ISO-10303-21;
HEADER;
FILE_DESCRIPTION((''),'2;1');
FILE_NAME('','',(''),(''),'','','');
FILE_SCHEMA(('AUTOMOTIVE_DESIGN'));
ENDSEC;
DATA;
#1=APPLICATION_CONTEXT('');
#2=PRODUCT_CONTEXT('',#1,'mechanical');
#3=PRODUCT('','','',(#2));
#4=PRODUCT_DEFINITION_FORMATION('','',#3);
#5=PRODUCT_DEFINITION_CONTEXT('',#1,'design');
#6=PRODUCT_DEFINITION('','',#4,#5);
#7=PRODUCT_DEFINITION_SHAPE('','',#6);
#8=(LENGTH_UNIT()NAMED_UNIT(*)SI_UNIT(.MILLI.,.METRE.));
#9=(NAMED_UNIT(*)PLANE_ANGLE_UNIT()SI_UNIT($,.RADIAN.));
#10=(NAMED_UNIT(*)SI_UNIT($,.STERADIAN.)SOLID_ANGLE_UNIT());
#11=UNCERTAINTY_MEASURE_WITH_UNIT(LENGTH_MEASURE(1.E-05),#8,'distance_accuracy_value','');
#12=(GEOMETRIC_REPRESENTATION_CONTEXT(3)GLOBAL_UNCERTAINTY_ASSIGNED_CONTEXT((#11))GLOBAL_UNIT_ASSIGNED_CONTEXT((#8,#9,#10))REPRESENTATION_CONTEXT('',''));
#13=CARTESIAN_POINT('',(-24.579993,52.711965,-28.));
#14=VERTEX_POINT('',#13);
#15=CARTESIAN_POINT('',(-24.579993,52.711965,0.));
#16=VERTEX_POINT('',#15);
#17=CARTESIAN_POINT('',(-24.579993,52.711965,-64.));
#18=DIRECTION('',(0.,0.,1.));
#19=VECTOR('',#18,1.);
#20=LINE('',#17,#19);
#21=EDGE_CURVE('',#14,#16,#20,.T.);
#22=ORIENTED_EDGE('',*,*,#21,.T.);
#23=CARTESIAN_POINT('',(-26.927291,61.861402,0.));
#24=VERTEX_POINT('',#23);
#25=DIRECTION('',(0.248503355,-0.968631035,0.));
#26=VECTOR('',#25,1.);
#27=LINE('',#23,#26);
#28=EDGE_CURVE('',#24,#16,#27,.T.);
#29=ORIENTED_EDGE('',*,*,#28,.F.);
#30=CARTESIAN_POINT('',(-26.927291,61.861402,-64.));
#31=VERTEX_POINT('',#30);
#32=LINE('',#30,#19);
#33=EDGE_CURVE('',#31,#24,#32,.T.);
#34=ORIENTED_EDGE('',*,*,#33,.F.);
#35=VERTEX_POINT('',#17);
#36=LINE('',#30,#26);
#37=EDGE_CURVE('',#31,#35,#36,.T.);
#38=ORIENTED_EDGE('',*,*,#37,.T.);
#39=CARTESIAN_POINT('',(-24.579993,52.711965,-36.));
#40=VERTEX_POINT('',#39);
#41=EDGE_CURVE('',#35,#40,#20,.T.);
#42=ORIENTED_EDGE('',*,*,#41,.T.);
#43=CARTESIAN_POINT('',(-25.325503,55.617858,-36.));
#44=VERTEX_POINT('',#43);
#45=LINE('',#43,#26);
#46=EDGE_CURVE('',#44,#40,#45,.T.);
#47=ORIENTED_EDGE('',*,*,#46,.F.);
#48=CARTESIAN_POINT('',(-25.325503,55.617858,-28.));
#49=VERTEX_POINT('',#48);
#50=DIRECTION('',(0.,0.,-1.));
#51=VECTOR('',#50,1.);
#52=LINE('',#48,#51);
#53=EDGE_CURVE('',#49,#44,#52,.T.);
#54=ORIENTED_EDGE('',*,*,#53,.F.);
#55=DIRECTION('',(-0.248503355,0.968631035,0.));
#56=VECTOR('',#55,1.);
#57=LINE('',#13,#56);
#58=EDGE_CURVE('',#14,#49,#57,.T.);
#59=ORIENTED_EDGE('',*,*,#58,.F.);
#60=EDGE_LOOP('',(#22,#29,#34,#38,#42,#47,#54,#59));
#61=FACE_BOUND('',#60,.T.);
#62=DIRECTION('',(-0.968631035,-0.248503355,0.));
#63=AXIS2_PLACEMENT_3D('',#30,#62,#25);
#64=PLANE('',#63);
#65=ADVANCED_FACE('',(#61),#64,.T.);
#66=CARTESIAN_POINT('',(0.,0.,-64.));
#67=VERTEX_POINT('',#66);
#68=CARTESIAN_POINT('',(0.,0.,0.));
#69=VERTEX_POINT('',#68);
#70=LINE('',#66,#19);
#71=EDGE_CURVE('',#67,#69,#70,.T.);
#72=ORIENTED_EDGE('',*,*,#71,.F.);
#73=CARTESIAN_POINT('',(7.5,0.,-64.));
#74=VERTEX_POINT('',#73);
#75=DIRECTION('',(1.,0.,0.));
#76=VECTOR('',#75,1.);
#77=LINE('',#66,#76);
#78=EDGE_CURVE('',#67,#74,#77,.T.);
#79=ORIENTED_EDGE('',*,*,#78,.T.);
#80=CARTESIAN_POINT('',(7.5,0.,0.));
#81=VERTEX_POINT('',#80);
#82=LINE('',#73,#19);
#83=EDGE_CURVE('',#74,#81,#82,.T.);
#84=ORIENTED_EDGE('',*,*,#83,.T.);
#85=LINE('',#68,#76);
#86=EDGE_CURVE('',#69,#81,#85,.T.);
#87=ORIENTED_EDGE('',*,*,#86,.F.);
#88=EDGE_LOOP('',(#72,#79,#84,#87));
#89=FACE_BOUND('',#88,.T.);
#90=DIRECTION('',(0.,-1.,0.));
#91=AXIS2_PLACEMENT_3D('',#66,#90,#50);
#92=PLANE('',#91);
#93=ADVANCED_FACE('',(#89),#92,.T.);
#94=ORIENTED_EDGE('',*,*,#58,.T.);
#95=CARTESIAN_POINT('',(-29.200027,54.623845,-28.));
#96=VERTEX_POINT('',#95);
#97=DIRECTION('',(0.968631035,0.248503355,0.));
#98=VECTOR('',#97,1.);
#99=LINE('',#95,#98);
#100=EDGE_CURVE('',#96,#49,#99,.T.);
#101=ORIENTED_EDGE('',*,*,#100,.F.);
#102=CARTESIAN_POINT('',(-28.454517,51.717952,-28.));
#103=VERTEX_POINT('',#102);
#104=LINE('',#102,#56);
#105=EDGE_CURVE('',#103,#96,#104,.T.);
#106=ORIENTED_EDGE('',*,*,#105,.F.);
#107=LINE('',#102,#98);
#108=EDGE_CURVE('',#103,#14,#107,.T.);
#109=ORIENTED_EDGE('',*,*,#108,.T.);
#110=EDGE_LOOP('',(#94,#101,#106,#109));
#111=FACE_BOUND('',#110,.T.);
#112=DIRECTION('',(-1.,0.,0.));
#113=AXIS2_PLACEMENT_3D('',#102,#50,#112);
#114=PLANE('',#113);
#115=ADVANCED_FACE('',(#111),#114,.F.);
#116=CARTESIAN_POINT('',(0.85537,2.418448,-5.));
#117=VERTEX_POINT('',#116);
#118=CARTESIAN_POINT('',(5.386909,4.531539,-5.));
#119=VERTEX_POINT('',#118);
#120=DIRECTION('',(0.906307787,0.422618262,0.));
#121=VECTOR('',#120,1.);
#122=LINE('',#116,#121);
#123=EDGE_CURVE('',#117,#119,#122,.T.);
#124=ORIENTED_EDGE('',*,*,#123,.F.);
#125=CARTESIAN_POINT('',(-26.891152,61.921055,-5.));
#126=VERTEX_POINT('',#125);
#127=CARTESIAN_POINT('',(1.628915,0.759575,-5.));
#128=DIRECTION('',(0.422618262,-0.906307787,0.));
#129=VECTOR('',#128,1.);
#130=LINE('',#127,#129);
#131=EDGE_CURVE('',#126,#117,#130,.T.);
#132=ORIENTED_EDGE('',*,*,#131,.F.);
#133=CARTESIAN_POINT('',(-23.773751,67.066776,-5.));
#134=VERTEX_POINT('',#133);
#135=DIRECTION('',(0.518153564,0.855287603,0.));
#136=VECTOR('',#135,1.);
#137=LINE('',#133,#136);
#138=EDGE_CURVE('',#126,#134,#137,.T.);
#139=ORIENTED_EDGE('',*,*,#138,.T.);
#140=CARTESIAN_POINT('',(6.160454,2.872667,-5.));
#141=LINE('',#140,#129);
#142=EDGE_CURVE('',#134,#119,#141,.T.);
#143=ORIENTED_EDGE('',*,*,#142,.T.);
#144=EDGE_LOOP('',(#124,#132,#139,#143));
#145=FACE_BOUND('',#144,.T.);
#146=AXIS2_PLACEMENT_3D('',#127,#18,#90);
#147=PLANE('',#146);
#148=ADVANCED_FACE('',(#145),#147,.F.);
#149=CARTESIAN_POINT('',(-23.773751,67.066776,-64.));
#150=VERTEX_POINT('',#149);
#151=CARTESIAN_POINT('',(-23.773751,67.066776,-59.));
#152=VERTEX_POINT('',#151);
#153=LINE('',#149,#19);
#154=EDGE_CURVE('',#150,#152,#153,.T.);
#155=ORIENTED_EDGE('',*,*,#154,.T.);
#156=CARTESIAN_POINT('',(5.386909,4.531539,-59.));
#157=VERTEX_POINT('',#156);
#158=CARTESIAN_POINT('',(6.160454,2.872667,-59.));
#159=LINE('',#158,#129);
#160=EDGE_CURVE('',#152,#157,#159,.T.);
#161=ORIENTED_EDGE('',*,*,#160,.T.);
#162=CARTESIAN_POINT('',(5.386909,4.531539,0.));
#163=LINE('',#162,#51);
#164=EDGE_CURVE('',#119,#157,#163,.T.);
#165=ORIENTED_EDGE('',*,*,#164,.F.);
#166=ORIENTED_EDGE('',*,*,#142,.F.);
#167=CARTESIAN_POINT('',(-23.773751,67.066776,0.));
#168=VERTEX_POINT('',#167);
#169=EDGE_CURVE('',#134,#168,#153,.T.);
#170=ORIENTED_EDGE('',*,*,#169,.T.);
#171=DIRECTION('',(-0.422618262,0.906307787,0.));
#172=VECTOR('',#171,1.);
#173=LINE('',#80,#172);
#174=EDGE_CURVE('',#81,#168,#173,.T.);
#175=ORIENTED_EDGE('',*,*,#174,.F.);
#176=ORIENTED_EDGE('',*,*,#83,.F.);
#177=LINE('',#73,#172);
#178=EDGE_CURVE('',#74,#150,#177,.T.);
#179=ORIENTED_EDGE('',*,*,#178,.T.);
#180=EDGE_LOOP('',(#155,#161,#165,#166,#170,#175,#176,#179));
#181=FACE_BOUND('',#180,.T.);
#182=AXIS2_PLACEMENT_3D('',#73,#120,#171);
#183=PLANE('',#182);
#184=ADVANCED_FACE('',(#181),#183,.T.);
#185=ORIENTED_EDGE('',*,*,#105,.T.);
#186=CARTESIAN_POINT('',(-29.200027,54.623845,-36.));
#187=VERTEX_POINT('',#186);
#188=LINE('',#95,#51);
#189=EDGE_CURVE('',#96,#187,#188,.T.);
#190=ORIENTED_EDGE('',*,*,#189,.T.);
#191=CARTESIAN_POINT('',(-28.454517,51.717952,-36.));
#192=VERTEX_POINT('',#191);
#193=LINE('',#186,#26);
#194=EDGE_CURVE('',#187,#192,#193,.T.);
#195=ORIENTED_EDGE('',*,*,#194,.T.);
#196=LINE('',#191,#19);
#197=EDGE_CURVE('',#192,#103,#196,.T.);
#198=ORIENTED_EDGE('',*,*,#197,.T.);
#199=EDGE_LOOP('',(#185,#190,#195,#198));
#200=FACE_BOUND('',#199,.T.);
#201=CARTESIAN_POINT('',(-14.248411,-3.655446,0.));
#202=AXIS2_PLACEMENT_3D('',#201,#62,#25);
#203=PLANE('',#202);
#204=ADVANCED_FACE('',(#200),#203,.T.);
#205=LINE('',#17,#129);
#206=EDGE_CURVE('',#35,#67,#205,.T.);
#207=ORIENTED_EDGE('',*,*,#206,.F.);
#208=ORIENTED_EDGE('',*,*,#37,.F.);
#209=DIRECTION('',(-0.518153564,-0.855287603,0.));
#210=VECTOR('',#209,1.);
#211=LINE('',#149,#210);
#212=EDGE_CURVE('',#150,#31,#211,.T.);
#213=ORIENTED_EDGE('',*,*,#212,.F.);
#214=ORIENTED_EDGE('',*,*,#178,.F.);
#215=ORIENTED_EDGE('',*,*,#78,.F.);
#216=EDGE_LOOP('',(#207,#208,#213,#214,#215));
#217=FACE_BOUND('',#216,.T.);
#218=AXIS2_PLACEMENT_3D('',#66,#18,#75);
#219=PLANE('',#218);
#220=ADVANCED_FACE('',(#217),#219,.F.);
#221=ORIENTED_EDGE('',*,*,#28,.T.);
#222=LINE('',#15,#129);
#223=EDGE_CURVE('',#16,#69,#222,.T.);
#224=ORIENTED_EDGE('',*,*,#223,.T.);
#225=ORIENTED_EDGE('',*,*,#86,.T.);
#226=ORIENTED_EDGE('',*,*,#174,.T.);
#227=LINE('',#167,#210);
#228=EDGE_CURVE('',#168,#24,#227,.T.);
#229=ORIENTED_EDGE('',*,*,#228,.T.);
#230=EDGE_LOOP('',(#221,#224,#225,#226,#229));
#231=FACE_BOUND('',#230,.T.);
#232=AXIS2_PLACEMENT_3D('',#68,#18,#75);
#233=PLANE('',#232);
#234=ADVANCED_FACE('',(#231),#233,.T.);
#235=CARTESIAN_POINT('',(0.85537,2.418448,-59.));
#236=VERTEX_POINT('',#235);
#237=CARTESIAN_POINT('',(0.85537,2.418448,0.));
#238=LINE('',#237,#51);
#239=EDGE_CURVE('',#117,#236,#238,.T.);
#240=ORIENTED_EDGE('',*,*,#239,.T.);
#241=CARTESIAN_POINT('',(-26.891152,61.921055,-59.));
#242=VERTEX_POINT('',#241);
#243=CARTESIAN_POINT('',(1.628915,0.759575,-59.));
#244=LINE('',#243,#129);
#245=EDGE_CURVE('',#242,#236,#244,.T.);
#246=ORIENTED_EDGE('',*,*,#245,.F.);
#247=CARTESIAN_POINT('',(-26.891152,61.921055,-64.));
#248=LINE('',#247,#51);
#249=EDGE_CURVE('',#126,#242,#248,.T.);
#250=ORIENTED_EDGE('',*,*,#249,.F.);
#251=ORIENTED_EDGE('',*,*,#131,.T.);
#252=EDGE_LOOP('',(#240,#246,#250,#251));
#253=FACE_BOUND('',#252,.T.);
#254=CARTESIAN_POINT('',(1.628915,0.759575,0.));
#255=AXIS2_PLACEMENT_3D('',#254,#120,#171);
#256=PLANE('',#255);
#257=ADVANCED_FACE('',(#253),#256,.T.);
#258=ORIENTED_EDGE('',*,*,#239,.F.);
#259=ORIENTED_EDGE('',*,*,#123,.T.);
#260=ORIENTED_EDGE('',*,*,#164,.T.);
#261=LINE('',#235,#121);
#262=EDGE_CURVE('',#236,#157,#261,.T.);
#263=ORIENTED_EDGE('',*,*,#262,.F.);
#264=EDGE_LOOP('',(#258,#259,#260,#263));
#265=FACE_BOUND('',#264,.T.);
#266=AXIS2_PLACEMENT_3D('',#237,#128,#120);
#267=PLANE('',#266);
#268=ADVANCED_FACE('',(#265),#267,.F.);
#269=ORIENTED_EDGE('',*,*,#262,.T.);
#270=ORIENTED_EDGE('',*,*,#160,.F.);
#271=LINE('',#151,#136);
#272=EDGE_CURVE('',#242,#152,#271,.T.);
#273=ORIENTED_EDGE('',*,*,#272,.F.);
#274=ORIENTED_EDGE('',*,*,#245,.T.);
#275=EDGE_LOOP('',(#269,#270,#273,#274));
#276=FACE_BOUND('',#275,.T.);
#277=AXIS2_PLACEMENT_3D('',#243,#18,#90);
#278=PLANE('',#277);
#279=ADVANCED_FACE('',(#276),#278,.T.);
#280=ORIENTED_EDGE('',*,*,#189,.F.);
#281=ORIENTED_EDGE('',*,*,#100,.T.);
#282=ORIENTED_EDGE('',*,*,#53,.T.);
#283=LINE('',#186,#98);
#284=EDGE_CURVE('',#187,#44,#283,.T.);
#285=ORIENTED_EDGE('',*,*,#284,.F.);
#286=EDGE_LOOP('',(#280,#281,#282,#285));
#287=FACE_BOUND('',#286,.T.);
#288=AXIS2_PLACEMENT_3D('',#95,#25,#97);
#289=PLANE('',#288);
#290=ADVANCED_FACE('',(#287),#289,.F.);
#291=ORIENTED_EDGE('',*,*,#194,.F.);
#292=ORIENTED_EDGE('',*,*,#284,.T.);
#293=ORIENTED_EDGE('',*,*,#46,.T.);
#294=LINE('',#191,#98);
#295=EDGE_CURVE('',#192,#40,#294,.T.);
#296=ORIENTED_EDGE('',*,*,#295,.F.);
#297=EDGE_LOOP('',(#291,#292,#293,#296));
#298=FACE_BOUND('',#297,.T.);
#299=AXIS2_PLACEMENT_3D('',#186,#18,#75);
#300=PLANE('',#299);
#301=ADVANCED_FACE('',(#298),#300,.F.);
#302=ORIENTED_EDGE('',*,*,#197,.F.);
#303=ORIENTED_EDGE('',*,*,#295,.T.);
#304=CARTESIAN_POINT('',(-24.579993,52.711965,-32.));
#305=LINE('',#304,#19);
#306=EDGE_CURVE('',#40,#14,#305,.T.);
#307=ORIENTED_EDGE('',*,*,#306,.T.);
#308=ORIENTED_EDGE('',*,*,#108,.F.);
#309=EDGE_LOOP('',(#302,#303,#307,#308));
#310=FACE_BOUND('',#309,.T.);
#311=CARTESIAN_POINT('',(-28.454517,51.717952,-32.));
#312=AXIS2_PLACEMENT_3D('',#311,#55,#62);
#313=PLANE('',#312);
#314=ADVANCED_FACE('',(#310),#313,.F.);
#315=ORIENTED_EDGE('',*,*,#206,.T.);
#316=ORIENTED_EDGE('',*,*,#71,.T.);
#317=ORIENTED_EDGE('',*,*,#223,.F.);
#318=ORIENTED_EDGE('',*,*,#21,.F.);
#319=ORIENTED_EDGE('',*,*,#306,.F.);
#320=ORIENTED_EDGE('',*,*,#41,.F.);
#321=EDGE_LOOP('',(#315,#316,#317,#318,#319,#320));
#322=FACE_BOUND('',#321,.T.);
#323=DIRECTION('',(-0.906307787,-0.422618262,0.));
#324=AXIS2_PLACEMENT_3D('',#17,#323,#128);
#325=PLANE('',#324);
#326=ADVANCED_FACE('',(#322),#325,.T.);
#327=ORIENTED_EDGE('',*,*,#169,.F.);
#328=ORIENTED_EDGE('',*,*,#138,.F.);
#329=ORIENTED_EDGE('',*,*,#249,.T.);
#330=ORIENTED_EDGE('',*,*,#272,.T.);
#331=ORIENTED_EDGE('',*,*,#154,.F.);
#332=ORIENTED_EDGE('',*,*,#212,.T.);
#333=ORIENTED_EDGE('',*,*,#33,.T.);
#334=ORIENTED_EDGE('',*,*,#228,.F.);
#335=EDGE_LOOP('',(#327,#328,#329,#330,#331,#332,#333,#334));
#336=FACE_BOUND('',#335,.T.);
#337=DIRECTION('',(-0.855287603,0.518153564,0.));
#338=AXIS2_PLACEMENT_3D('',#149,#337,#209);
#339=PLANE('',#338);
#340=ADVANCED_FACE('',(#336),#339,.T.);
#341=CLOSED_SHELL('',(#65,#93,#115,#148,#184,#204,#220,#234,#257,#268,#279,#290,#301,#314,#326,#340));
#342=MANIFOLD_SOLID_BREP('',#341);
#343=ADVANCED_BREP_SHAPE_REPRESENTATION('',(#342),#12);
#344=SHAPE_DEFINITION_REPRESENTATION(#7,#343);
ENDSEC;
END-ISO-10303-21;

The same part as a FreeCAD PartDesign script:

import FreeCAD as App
import Part
import Sketcher
from FreeCAD import Vector
Q = App.Units.Quantity


def add_polygon(sketch, points):
    """Adds a closed chain of lines whose ends are joined by coincident constraints."""
    first, n = sketch.GeometryCount, len(points)
    for a, b in zip(points, points[1:] + points[:1]):
        sketch.addGeometry(Part.LineSegment(App.Vector(*a, 0), App.Vector(*b, 0)), False)
    for i in range(n):
        sketch.addConstraint(Sketcher.Constraint("Coincident", first + i, 2, first + (i + 1) % n, 1))

doc = App.newDocument("Part")
body = doc.addObject("PartDesign::Body", "Body")

# Sketch on XY plane
sketch1 = doc.addObject("Sketcher::SketchObject", "Sketch")
body.addObject(sketch1)
sketch1.AttachmentSupport = (doc.XY_Plane, [""])
sketch1.MapMode = "FlatFace"
add_polygon(sketch1, [(0, 0), (8, 0), (-24, 67), (-27, 62), (-25, 53)])  # lines 0-4
sketch1.addConstraint([
    Sketcher.Constraint("Horizontal", 0),
    Sketcher.Constraint("Coincident", 4, 2, -1, 1),
    Sketcher.Constraint("Parallel", 1, 4),
    Sketcher.Constraint("Angle", 1, Q("115 deg")),
    Sketcher.Constraint("Distance", 1, Q("74 mm")),
    Sketcher.Constraint("DistanceX", 0, 1, 0, 2, Q("7.5 mm")),
    Sketcher.Constraint("DistanceY", -1, 1, 2, 2, Q("61.861402 mm")),
    Sketcher.Constraint("Distance", 2, Q("6.08611 mm")),
    Sketcher.Constraint("Distance", 3, Q("9.445739 mm")),
])
pad1 = doc.addObject("PartDesign::Pad", "Pad")
body.addObject(pad1)
pad1.Profile = sketch1
pad1.Length = 64
pad1.Reversed = True

# Sketch on an angled plane
sketch2 = doc.addObject("Sketcher::SketchObject", "Sketch001")
body.addObject(sketch2)
sketch2.Placement = App.Placement(Vector(-10.373887, -2.661432, 0), App.Rotation(Vector(0, 0, 1), Vector(-0.248503355, 0.968631035, 0), Vector(-0.968631035, -0.248503355, 0), "ZXY"))
add_polygon(sketch2, [(-36, 57.2), (-28, 57.2), (-28, 60.2), (-36, 60.2)])  # lines 0-3
sketch2.addConstraint([
    Sketcher.Constraint("Horizontal", 0),
    Sketcher.Constraint("Vertical", 1),
    Sketcher.Constraint("Horizontal", 2),
    Sketcher.Constraint("Vertical", 3),
    Sketcher.Constraint("DistanceX", 0, 1, 0, 2, Q("8 mm")),
    Sketcher.Constraint("DistanceY", 1, 1, 1, 2, Q("3 mm")),
    Sketcher.Constraint("DistanceX", 0, 2, -1, 1, Q("28 mm")),
    Sketcher.Constraint("DistanceY", -1, 1, 0, 2, Q("57.166656 mm")),
])
pad2 = doc.addObject("PartDesign::Pad", "Pad001")
body.addObject(pad2)
pad2.Profile = sketch2
pad2.Length = 4

# Sketch on an angled plane
sketch3 = doc.addObject("Sketcher::SketchObject", "Sketch002")
body.addObject(sketch3)
sketch3.Placement = App.Placement(Vector(6.160454, 2.872667, 0), App.Rotation(Vector(0, 0, -1), Vector(-0.422618262, 0.906307787, 0), Vector(0.906307787, 0.422618262, 0), "ZXY"))
add_polygon(sketch3, [(5, 71), (5, 2), (59, 2), (59, 71)])  # lines 0-3
sketch3.addConstraint([
    Sketcher.Constraint("Vertical", 0),
    Sketcher.Constraint("Horizontal", 1),
    Sketcher.Constraint("Vertical", 2),
    Sketcher.Constraint("Horizontal", 3),
    Sketcher.Constraint("DistanceX", 1, 1, 1, 2, Q("54 mm")),
    Sketcher.Constraint("DistanceY", 0, 2, 0, 1, Q("69 mm")),
    Sketcher.Constraint("DistanceX", -1, 1, 0, 2, Q("5 mm")),
    Sketcher.Constraint("DistanceY", -1, 1, 0, 2, Q("1.830363 mm")),
])
pocket1 = doc.addObject("PartDesign::Pocket", "Pocket")
body.addObject(pocket1)
pocket1.Profile = sketch3
pocket1.Length = 5

doc.recompute()
